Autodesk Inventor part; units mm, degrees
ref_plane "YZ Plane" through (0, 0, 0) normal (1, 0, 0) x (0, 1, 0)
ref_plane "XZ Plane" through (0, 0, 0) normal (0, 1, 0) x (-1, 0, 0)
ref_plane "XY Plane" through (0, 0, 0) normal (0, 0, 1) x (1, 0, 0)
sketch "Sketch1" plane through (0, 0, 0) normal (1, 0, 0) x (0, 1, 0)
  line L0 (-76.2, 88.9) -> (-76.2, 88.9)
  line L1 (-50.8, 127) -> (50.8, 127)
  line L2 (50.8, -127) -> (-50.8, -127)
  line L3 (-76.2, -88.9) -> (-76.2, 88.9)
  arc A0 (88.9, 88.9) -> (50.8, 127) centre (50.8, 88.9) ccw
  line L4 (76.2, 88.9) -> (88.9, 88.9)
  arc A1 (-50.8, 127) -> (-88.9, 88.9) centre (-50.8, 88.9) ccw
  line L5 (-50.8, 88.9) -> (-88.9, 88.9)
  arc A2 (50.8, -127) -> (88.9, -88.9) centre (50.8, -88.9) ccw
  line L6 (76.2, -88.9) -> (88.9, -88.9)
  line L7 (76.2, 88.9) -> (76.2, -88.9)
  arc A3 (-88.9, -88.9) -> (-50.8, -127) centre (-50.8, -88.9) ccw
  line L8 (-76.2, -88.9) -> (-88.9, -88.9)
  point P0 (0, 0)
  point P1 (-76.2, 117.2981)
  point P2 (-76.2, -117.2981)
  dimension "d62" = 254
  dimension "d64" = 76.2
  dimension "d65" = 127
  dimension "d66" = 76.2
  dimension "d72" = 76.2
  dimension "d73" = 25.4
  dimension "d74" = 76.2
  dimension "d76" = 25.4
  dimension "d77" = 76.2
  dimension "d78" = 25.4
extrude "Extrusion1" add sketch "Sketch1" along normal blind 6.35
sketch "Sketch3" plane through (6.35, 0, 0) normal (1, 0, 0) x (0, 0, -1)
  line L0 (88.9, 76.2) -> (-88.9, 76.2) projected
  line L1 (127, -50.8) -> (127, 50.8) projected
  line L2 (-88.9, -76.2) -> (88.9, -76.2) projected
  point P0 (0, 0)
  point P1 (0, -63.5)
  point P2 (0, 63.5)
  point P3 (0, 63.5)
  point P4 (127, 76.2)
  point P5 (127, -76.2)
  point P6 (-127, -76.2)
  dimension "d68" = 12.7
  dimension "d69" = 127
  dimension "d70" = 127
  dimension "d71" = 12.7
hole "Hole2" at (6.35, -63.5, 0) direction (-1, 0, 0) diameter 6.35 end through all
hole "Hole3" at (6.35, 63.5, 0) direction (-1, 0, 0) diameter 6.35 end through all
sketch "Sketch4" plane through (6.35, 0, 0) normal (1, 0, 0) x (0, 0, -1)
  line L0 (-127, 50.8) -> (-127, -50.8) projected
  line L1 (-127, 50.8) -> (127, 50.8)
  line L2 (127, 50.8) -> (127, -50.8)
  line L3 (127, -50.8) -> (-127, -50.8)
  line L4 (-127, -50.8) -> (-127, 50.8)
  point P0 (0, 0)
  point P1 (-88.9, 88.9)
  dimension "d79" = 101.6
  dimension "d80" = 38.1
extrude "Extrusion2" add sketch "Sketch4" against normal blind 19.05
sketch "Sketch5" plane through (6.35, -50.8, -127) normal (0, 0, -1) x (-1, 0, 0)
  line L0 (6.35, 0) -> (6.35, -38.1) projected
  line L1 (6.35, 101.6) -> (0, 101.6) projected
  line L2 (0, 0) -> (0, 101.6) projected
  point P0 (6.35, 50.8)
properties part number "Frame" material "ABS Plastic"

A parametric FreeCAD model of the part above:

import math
import FreeCAD as App
import Part
import Sketcher

V = App.Vector
Q = App.Units.Quantity


def add_polygon(sketch, points):
    """Adds a closed chain of lines whose ends are joined by coincident constraints."""
    first, n = sketch.GeometryCount, len(points)
    for a, b in zip(points, points[1:] + points[:1]):
        sketch.addGeometry(Part.LineSegment(App.Vector(*a, 0), App.Vector(*b, 0)), False)
    for i in range(n):
        sketch.addConstraint(Sketcher.Constraint("Coincident", first + i, 2, first + (i + 1) % n, 1))

doc = App.newDocument("Part")
body = doc.addObject("PartDesign::Body", "Body")

# Sketch on YZ plane
sketch1 = body.newObject("Sketcher::SketchObject", "Sketch")
sketch1.AttachmentSupport = (doc.getObject("YZ_Plane"), [""])
sketch1.MapMode = "FlatFace"
sketch1.addGeometry(Part.LineSegment(V(51, 127, 0), V(-51, 127, 0)), False)
sketch1.addGeometry(Part.ArcOfCircle(Part.Circle(V(-51, 89, 0), V(0, 0, 1), 38), math.radians(90), math.radians(180)), False)
sketch1.addGeometry(Part.LineSegment(V(-89, 89, 0), V(-76, 89, 0)), False)
sketch1.addGeometry(Part.LineSegment(V(-76, 89, 0), V(-76, -89, 0)), False)
sketch1.addGeometry(Part.LineSegment(V(-76, -89, 0), V(-89, -89, 0)), False)
sketch1.addGeometry(Part.ArcOfCircle(Part.Circle(V(-51, -89, 0), V(0, 0, 1), 38), math.radians(180), math.radians(270)), False)
sketch1.addGeometry(Part.LineSegment(V(-51, -127, 0), V(51, -127, 0)), False)
sketch1.addGeometry(Part.ArcOfCircle(Part.Circle(V(51, -89, 0), V(0, 0, 1), 38), math.radians(-90), math.radians(0)), False)
sketch1.addGeometry(Part.LineSegment(V(89, -89, 0), V(76, -89, 0)), False)
sketch1.addGeometry(Part.LineSegment(V(76, -89, 0), V(76, 89, 0)), False)
sketch1.addGeometry(Part.LineSegment(V(76, 89, 0), V(89, 89, 0)), False)
sketch1.addGeometry(Part.ArcOfCircle(Part.Circle(V(51, 89, 0), V(0, 0, 1), 38), math.radians(0), math.radians(90)), False)
sketch1.addConstraint(Sketcher.Constraint("Tangent", 0, 2, 1, 1))
sketch1.addConstraint(Sketcher.Constraint("Coincident", 1, 2, 2, 1))
sketch1.addConstraint(Sketcher.Constraint("Coincident", 2, 2, 3, 1))
sketch1.addConstraint(Sketcher.Constraint("Coincident", 3, 2, 4, 1))
sketch1.addConstraint(Sketcher.Constraint("Coincident", 4, 2, 5, 1))
sketch1.addConstraint(Sketcher.Constraint("Tangent", 5, 2, 6, 1))
sketch1.addConstraint(Sketcher.Constraint("Tangent", 6, 2, 7, 1))
sketch1.addConstraint(Sketcher.Constraint("Coincident", 7, 2, 8, 1))
sketch1.addConstraint(Sketcher.Constraint("Coincident", 8, 2, 9, 1))
sketch1.addConstraint(Sketcher.Constraint("Coincident", 9, 2, 10, 1))
sketch1.addConstraint(Sketcher.Constraint("Coincident", 10, 2, 11, 1))
sketch1.addConstraint(Sketcher.Constraint("Tangent", 11, 2, 0, 1))
sketch1.addConstraint(Sketcher.Constraint("Horizontal", 0))
sketch1.addConstraint(Sketcher.Constraint("Horizontal", 2))
sketch1.addConstraint(Sketcher.Constraint("Vertical", 3))
sketch1.addConstraint(Sketcher.Constraint("Horizontal", 4))
sketch1.addConstraint(Sketcher.Constraint("Horizontal", 6))
sketch1.addConstraint(Sketcher.Constraint("Horizontal", 8))
sketch1.addConstraint(Sketcher.Constraint("Vertical", 9))
sketch1.addConstraint(Sketcher.Constraint("Horizontal", 10))
sketch1.addConstraint(Sketcher.Constraint("Equal", 1, 5))
sketch1.addConstraint(Sketcher.Constraint("Equal", 5, 7))
sketch1.addConstraint(Sketcher.Constraint("Equal", 7, 11))
sketch1.addConstraint(Sketcher.Constraint("Symmetric", 1, 3, 7, 3, -1, 1))
sketch1.addConstraint(Sketcher.Constraint("Symmetric", 2, 2, 8, 2, -1, 1))
sketch1.addConstraint(Sketcher.Constraint("Symmetric", 4, 2, 10, 2, -1, 1))
sketch1.addConstraint(Sketcher.Constraint("Symmetric", 4, 2, 7, 2, -2))
sketch1.addConstraint(Sketcher.Constraint("Horizontal", 11, 3, 1, 2))
sketch1.addConstraint(Sketcher.Constraint("Radius", 1, Q("1.5 in")))
sketch1.addConstraint(Sketcher.Constraint("DistanceY", -1, 1, 0, 2, Q("5 in")))
sketch1.addConstraint(Sketcher.Constraint("DistanceX", 2, 2, -1, 1, Q("3 in")))
sketch1.addConstraint(Sketcher.Constraint("DistanceX", 2, 2, 1, 3, Q("1 in")))
pad1 = body.newObject("PartDesign::Pad", "Pad")
pad1.Profile = sketch1
pad1.Length = Q("0.25 in")

# Sketch on YZ plane
sketch2 = body.newObject("Sketcher::SketchObject", "Sketch001")
sketch2.AttachmentSupport = (doc.getObject("YZ_Plane"), [""])
sketch2.MapMode = "FlatFace"
sketch2.AttachmentOffset = App.Placement(V(0, 0, 0.25 * 25.4), App.Rotation())
sketch2.addGeometry(Part.Circle(V(-63.5, 0, 0), V(0, 0, 1), 3.2), False)
sketch2.addConstraint(Sketcher.Constraint("PointOnObject", 0, 3, -1))
sketch2.addConstraint(Sketcher.Constraint("Diameter", 0, Q("0.25 in")))
sketch2.addConstraint(Sketcher.Constraint("DistanceX", 0, 3, -1, 1, Q("2.5 in")))
doc.recompute()
hole = body.newObject("PartDesign::Hole", "Hole")
hole.Profile = sketch2
hole.ThreadType = "None"
hole.Diameter = Q("0.25 in")
hole.DepthType = "ThroughAll"

# Sketch on YZ plane
sketch3 = body.newObject("Sketcher::SketchObject", "Sketch002")
sketch3.AttachmentSupport = (doc.getObject("YZ_Plane"), [""])
sketch3.MapMode = "FlatFace"
sketch3.AttachmentOffset = App.Placement(V(0, 0, 0.25 * 25.4), App.Rotation())
sketch3.addGeometry(Part.Circle(V(63.5, 0, 0), V(0, 0, 1), 3.2), False)
sketch3.addConstraint(Sketcher.Constraint("PointOnObject", 0, 3, -1))
sketch3.addConstraint(Sketcher.Constraint("Diameter", 0, Q("0.25 in")))
sketch3.addConstraint(Sketcher.Constraint("DistanceX", -1, 1, 0, 3, Q("2.5 in")))
doc.recompute()
hole2 = body.newObject("PartDesign::Hole", "Hole001")
hole2.Profile = sketch3
hole2.ThreadType = "None"
hole2.Diameter = Q("0.25 in")
hole2.DepthType = "ThroughAll"

# Sketch on YZ plane
sketch4 = body.newObject("Sketcher::SketchObject", "Sketch003")
sketch4.AttachmentSupport = (doc.getObject("YZ_Plane"), [""])
sketch4.MapMode = "FlatFace"
sketch4.AttachmentOffset = App.Placement(V(0, 0, 0.25 * 25.4), App.Rotation())
add_polygon(sketch4, [(51, -127), (51, 127), (-51, 127), (-51, -127)])  # lines 0-3
sketch4.addConstraint(Sketcher.Constraint("Vertical", 0))
sketch4.addConstraint(Sketcher.Constraint("Horizontal", 1))
sketch4.addConstraint(Sketcher.Constraint("Vertical", 2))
sketch4.addConstraint(Sketcher.Constraint("Horizontal", 3))
sketch4.addConstraint(Sketcher.Constraint("Symmetric", 0, 2, 2, 2, -1, 1))
sketch4.addConstraint(Sketcher.Constraint("DistanceX", 1, 2, 1, 1, Q("4 in")))
sketch4.addConstraint(Sketcher.Constraint("DistanceY", 0, 1, 0, 2, Q("10 in")))
pad2 = body.newObject("PartDesign::Pad", "Pad001")
pad2.Profile = sketch4
pad2.Length = Q("0.75 in")
pad2.Reversed = True

doc.recompute()
